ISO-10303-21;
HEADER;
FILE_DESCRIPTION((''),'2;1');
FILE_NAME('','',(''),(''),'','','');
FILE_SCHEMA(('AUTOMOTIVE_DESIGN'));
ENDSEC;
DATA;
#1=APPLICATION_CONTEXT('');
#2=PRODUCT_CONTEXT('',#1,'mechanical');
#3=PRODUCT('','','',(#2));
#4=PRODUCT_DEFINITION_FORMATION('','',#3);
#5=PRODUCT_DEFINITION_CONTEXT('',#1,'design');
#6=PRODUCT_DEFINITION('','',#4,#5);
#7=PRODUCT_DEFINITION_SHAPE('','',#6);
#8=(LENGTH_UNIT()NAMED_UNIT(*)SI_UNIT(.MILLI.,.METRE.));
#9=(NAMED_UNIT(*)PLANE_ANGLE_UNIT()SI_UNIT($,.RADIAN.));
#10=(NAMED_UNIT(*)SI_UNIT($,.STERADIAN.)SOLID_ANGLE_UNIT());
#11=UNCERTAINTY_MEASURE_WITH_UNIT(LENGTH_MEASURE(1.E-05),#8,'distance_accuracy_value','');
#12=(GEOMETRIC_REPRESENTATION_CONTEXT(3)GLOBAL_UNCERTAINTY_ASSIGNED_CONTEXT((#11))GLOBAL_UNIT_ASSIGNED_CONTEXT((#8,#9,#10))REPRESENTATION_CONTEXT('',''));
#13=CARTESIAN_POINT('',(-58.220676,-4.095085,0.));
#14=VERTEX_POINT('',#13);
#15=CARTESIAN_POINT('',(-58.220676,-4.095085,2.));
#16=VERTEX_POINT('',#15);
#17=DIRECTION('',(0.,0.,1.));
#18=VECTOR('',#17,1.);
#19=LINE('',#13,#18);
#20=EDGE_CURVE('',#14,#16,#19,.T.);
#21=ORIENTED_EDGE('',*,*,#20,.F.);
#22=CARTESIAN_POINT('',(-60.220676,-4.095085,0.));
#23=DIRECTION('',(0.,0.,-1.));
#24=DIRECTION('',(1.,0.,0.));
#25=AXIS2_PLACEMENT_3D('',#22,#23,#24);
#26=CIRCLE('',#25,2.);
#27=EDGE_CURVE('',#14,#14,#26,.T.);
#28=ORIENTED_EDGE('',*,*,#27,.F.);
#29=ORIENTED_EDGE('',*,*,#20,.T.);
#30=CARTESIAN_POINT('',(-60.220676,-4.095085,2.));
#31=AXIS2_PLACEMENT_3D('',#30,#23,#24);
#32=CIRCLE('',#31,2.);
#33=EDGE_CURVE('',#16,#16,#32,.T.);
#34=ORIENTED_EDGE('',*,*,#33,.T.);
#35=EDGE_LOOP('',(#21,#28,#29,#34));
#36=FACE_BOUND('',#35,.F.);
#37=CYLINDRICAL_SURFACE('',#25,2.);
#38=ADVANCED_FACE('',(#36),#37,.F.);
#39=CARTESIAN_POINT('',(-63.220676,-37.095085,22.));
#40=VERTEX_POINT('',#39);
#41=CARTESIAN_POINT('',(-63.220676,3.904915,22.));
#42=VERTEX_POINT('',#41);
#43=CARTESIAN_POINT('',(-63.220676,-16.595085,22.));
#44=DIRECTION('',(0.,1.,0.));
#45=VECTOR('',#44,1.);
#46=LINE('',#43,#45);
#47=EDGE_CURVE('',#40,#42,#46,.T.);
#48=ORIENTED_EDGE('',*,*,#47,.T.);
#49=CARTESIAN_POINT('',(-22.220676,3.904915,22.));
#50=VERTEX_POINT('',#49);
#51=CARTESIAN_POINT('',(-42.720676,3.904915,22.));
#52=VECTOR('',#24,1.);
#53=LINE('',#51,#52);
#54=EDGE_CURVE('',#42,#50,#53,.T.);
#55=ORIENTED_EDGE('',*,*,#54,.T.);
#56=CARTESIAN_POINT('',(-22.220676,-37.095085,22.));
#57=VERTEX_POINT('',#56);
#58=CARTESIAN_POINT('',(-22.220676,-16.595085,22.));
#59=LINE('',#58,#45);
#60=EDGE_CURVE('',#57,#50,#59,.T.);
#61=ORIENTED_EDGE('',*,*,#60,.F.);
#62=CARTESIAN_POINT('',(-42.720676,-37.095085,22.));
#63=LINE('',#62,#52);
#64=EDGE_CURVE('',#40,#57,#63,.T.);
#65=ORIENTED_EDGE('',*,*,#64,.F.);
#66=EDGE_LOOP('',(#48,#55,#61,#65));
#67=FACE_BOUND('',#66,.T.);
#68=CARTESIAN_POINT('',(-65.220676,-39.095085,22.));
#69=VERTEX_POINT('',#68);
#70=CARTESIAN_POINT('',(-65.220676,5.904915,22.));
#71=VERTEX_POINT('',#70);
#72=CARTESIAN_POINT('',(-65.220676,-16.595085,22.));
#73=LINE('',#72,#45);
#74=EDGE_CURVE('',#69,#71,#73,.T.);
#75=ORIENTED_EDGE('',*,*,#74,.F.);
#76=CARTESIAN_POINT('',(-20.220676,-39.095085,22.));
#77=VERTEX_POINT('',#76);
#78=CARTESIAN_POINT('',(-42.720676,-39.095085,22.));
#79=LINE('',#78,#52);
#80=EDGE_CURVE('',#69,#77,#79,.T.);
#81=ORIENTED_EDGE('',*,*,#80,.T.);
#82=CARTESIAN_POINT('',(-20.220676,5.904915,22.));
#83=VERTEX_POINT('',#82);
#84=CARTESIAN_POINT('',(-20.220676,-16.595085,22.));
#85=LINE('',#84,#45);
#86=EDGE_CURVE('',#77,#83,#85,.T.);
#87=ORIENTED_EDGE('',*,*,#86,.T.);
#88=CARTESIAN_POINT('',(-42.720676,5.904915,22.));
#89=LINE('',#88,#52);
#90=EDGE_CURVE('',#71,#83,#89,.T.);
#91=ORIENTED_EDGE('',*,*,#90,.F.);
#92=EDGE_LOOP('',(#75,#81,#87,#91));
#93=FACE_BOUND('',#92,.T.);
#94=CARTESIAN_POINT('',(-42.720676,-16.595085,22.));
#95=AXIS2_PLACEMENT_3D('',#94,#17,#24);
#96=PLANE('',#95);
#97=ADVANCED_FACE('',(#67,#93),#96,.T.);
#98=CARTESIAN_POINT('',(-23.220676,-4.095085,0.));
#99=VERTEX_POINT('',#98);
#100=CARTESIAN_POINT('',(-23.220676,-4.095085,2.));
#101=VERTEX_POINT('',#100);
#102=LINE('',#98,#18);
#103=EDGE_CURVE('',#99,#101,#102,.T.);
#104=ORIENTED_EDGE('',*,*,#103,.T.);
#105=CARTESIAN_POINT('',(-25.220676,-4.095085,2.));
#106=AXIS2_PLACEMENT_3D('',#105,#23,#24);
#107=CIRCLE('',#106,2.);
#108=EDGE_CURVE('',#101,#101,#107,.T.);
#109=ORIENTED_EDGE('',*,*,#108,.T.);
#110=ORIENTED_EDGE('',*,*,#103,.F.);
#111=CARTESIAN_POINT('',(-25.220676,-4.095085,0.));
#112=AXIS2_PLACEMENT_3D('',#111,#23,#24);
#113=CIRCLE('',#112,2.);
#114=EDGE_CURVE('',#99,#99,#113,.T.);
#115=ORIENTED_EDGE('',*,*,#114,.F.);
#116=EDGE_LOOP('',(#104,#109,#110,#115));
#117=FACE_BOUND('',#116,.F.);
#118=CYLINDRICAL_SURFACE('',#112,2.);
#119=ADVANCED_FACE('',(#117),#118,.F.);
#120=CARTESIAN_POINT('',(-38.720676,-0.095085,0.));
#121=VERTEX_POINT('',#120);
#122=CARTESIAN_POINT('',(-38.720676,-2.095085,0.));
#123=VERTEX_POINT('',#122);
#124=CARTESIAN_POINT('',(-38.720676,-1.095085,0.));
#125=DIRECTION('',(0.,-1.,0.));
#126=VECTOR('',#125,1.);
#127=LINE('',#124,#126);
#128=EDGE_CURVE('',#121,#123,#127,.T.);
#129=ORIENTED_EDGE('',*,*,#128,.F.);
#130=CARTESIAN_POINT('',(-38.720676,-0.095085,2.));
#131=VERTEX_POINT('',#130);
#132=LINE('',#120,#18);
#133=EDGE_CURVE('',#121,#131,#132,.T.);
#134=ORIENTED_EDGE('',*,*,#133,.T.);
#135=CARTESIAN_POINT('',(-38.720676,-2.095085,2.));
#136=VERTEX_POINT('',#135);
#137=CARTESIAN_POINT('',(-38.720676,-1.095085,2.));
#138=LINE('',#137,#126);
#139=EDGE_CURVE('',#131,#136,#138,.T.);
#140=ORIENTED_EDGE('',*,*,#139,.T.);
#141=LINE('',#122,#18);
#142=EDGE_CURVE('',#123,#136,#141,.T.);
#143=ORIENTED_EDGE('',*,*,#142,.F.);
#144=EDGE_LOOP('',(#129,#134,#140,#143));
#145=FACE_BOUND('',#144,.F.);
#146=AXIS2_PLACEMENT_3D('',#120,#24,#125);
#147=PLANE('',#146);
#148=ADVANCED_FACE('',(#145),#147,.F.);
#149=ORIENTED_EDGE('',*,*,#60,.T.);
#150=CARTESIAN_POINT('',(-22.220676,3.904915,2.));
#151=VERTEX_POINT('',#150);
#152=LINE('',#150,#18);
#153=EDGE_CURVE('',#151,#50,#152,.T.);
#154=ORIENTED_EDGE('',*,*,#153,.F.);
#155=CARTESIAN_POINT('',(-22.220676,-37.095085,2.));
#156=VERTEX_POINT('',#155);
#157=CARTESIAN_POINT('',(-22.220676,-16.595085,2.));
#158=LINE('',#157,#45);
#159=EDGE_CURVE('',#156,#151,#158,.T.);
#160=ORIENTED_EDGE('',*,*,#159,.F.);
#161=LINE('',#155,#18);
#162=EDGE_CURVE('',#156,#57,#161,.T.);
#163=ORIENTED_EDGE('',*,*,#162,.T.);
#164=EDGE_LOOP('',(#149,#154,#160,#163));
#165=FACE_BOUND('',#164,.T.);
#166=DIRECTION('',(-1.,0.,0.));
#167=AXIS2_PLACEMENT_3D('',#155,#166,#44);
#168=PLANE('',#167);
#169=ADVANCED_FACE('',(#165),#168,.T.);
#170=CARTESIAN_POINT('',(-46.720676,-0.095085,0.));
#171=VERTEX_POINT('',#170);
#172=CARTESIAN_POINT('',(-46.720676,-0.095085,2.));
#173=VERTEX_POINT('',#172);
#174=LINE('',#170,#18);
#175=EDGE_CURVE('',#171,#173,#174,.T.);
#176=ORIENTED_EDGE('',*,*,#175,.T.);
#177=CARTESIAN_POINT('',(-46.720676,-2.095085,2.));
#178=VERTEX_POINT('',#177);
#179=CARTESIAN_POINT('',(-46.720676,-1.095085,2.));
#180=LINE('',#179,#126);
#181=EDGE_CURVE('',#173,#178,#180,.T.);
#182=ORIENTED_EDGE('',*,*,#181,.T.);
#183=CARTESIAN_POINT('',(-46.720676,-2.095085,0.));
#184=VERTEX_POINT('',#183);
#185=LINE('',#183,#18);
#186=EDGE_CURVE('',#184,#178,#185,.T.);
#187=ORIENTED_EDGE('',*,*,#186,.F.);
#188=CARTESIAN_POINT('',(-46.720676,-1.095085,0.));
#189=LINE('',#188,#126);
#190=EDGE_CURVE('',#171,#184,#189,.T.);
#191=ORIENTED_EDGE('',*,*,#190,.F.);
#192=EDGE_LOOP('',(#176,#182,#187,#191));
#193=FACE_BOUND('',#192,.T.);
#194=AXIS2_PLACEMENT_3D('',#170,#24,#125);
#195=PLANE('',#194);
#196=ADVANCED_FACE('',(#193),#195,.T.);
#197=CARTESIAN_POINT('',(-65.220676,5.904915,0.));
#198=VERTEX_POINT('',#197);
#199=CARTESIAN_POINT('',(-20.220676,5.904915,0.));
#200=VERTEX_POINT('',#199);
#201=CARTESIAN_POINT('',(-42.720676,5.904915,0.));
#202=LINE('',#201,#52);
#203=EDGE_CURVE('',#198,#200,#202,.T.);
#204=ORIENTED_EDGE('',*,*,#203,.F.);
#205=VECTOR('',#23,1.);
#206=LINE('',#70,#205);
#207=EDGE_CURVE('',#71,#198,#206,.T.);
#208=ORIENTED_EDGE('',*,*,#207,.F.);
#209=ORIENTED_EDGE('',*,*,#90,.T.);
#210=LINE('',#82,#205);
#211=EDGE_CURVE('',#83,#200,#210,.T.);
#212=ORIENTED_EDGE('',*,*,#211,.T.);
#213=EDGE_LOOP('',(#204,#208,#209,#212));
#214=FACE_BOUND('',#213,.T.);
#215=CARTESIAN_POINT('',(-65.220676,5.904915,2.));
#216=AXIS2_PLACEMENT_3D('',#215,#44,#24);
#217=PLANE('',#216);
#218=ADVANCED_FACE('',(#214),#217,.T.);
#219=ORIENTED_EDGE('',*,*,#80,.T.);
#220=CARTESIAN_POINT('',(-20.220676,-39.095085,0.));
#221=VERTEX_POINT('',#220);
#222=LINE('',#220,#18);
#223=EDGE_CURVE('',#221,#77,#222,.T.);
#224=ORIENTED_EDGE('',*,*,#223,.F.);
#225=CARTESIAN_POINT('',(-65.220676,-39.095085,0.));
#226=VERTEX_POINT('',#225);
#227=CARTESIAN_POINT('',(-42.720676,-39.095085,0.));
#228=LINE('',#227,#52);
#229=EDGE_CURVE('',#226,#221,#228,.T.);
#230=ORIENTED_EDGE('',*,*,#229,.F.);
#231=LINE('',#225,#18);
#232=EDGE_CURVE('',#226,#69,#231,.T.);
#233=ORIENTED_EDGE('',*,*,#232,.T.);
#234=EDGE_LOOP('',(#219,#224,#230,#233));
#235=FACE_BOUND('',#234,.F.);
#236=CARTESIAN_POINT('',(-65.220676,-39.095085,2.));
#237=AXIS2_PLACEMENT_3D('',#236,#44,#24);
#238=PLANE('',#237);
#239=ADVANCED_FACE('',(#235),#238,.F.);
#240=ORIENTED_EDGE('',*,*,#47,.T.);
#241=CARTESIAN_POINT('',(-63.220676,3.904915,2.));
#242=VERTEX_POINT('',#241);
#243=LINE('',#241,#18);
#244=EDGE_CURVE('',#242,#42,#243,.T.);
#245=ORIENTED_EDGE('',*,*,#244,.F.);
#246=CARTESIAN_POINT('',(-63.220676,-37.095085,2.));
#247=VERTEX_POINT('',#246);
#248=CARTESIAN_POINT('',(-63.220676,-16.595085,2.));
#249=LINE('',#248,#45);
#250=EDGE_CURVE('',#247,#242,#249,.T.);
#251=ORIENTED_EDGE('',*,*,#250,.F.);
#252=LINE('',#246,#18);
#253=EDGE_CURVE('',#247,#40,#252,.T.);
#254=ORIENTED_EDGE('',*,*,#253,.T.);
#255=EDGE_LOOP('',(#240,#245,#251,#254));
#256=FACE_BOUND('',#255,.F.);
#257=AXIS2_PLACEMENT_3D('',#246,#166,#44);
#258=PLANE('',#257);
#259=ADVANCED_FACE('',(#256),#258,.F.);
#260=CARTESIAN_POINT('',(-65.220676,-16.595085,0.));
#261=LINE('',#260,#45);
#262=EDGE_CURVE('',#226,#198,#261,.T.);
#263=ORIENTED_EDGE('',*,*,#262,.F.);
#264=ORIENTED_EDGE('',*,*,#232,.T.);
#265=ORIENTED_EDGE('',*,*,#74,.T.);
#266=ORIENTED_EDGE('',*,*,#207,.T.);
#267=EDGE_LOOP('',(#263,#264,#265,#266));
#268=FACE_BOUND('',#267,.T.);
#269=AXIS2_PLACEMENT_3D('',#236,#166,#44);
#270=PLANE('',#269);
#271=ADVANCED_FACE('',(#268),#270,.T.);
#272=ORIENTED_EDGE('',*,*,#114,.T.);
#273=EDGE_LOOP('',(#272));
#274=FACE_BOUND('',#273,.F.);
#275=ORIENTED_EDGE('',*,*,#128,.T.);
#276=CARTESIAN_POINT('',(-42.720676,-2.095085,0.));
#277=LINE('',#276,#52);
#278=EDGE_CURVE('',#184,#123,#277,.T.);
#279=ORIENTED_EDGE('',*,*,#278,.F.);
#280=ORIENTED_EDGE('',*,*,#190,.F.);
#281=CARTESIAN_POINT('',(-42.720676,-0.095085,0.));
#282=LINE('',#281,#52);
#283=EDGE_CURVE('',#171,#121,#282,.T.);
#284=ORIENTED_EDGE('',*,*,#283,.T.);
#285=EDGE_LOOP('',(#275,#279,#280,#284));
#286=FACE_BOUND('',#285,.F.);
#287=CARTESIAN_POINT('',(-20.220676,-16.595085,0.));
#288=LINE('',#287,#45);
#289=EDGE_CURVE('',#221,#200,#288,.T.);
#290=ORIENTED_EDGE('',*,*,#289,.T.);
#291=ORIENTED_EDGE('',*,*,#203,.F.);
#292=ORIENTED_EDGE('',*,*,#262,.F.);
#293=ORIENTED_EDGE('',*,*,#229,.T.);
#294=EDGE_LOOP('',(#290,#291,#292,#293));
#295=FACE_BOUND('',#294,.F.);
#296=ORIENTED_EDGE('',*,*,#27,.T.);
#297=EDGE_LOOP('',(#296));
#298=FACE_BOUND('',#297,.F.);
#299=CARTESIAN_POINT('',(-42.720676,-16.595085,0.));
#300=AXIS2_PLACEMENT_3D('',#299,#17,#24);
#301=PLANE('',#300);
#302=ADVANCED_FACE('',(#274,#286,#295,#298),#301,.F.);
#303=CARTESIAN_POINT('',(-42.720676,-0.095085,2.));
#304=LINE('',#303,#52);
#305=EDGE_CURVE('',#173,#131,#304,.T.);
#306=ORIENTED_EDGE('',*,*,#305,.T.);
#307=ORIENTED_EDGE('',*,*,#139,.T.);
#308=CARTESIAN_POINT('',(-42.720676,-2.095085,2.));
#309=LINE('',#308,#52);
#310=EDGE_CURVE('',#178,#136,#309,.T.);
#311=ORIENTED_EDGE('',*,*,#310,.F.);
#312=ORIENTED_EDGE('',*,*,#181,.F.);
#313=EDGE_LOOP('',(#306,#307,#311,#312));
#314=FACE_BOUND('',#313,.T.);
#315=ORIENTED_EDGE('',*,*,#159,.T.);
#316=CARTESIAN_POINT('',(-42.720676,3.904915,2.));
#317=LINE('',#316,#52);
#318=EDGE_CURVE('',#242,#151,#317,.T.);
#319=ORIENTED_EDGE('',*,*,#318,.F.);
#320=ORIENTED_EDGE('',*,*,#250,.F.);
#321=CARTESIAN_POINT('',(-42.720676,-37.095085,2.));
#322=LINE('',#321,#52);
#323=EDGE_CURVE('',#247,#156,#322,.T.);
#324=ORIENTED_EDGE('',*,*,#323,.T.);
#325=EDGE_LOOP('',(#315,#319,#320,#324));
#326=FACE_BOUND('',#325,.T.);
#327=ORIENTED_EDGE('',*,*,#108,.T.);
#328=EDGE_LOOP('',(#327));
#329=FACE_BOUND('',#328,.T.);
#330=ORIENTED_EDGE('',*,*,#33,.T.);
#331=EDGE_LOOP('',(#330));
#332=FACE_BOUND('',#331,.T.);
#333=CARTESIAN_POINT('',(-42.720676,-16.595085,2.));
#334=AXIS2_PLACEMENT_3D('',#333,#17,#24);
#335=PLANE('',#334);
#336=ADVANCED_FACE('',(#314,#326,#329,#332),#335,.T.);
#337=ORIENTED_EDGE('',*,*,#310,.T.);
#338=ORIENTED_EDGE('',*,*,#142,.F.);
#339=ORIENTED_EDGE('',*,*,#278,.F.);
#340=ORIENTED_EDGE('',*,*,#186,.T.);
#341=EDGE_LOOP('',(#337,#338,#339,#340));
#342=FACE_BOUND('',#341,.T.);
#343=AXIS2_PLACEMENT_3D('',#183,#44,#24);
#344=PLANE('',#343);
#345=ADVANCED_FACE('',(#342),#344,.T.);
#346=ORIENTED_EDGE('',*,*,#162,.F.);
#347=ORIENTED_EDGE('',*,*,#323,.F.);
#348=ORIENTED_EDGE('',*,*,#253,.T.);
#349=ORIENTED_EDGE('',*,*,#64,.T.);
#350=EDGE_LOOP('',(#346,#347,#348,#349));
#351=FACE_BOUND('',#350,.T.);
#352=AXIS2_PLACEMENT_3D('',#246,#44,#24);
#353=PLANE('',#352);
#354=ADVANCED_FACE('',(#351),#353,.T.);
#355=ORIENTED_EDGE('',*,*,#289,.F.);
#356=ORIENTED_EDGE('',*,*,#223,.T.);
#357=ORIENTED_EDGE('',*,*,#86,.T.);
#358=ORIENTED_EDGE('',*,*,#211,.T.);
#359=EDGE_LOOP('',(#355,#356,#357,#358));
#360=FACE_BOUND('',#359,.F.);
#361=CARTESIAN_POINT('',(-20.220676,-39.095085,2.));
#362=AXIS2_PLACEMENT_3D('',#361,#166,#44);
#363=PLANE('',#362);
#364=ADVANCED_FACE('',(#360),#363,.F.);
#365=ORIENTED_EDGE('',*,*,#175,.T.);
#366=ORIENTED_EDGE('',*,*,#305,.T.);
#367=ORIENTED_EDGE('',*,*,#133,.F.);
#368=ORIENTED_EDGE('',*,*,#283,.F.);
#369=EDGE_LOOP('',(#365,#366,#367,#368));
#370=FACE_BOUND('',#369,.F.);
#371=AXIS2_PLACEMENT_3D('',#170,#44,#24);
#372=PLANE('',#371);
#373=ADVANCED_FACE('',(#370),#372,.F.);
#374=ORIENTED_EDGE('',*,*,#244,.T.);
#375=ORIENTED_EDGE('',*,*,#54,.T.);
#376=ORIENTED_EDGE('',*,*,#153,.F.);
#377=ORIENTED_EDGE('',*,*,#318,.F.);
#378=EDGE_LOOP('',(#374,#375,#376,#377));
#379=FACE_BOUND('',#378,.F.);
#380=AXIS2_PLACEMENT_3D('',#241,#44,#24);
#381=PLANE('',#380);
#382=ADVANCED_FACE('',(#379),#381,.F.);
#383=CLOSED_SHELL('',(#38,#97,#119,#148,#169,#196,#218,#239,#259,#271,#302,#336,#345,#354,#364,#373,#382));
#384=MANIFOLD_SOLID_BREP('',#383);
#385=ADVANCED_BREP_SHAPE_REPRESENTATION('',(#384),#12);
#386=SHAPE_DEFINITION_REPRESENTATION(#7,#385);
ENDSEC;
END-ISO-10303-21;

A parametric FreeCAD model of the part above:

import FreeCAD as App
import Part
import Sketcher

V = App.Vector


def add_polygon(sketch, points):
    """Adds a closed chain of lines whose ends are joined by coincident constraints."""
    first, n = sketch.GeometryCount, len(points)
    for a, b in zip(points, points[1:] + points[:1]):
        sketch.addGeometry(Part.LineSegment(App.Vector(*a, 0), App.Vector(*b, 0)), False)
    for i in range(n):
        sketch.addConstraint(Sketcher.Constraint("Coincident", first + i, 2, first + (i + 1) % n, 1))

doc = App.newDocument("Part")
body = doc.addObject("PartDesign::Body", "Body")

sketch1 = body.newObject("Sketcher::SketchObject", "Sketch")
sketch1.AttachmentSupport = (doc.getObject("XY_Plane"), [""])
sketch1.MapMode = "FlatFace"
add_polygon(sketch1, [(-65.220676, 5.904915), (-65.220676, -39.095085), (-20.220676, -39.095085), (-20.220676, 5.904915)])
sketch1.addConstraint(Sketcher.Constraint("Vertical", 0))
sketch1.addConstraint(Sketcher.Constraint("Horizontal", 1))
sketch1.addConstraint(Sketcher.Constraint("Vertical", 2))
sketch1.addConstraint(Sketcher.Constraint("Horizontal", 3))
sketch1.addConstraint(Sketcher.Constraint("Equal", 3, 0))
sketch1.addConstraint(Sketcher.Constraint("DistanceX", 1, 1, 1, 2, 45.0))
sketch1.addConstraint(Sketcher.Constraint("DistanceX", 0, 2, -1, 1, 65.220676))
sketch1.addConstraint(Sketcher.Constraint("DistanceY", 0, 2, -1, 1, 39.095085))
pad1 = body.newObject("PartDesign::Pad", "Pad")
pad1.Profile = sketch1
pad1.Length = 2

sketch2 = body.newObject("Sketcher::SketchObject", "Sketch001")
sketch2.AttachmentSupport = (doc.getObject("XY_Plane"), [""])
sketch2.MapMode = "FlatFace"
sketch2.AttachmentOffset = App.Placement(V(0, 0, 2), App.Rotation())
add_polygon(sketch2, [(-65.220676, 5.904915), (-65.220676, -39.095085), (-20.220676, -39.095085), (-20.220676, 5.904915)])
add_polygon(sketch2, [(-22.220676, -37.095085), (-63.220676, -37.095085), (-63.220676, 3.904915), (-22.220676, 3.904915)])
sketch2.addConstraint(Sketcher.Constraint("Vertical", 0))
sketch2.addConstraint(Sketcher.Constraint("Horizontal", 1))
sketch2.addConstraint(Sketcher.Constraint("Vertical", 2))
sketch2.addConstraint(Sketcher.Constraint("Horizontal", 3))
sketch2.addConstraint(Sketcher.Constraint("Horizontal", 4))
sketch2.addConstraint(Sketcher.Constraint("Vertical", 5))
sketch2.addConstraint(Sketcher.Constraint("Horizontal", 6))
sketch2.addConstraint(Sketcher.Constraint("Vertical", 7))
sketch2.addConstraint(Sketcher.Constraint("Equal", 3, 0))
sketch2.addConstraint(Sketcher.Constraint("Equal", 6, 5))
sketch2.addConstraint(Sketcher.Constraint("DistanceX", 1, 1, 1, 2, 45.0))
sketch2.addConstraint(Sketcher.Constraint("DistanceX", 4, 2, 4, 1, 41.0))
sketch2.addConstraint(Sketcher.Constraint("DistanceX", 0, 2, 4, 2, 2.0))
sketch2.addConstraint(Sketcher.Constraint("DistanceY", 0, 2, 4, 2, 2.0))
sketch2.addConstraint(Sketcher.Constraint("DistanceX", 0, 2, -1, 1, 65.220676))
sketch2.addConstraint(Sketcher.Constraint("DistanceY", 0, 2, -1, 1, 39.095085))
pad2 = body.newObject("PartDesign::Pad", "Pad001")
pad2.Profile = sketch2
pad2.Length = 20

sketch3 = body.newObject("Sketcher::SketchObject", "Sketch002")
sketch3.AttachmentSupport = (doc.getObject("XY_Plane"), [""])
sketch3.MapMode = "FlatFace"
add_polygon(sketch3, [(-46.720676, -2.095085), (-46.720676, -0.095085), (-38.720676, -0.095085), (-38.720676, -2.095085)])
sketch3.addConstraint(Sketcher.Constraint("Vertical", 0))
sketch3.addConstraint(Sketcher.Constraint("Horizontal", 1))
sketch3.addConstraint(Sketcher.Constraint("Vertical", 2))
sketch3.addConstraint(Sketcher.Constraint("Horizontal", 3))
sketch3.addConstraint(Sketcher.Constraint("DistanceX", 1, 1, 1, 2, 8.0))
sketch3.addConstraint(Sketcher.Constraint("DistanceY", 0, 1, 0, 2, 2.0))
sketch3.addConstraint(Sketcher.Constraint("DistanceX", 0, 2, -1, 1, 46.720676))
sketch3.addConstraint(Sketcher.Constraint("DistanceY", 0, 2, -1, 1, 0.095085))
pocket1 = body.newObject("PartDesign::Pocket", "Pocket")
pocket1.Profile = sketch3
pocket1.Type = "ThroughAll"
pocket1.Reversed = True

sketch4 = body.newObject("Sketcher::SketchObject", "Sketch003")
sketch4.AttachmentSupport = (doc.getObject("XY_Plane"), [""])
sketch4.MapMode = "FlatFace"
sketch4.addGeometry(Part.Circle(V(-25.220676, -4.095085, 0), V(0, 0, 1), 2), False)
sketch4.addGeometry(Part.Circle(V(-60.220676, -4.095085, 0), V(0, 0, 1), 2), False)
sketch4.addConstraint(Sketcher.Constraint("Equal", 0, 1))
sketch4.addConstraint(Sketcher.Constraint("Horizontal", 0, 3, 1, 3))
sketch4.addConstraint(Sketcher.Constraint("Diameter", 0, 4.0))
sketch4.addConstraint(Sketcher.Constraint("DistanceX", 1, 3, 0, 3, 35.0))
sketch4.addConstraint(Sketcher.Constraint("DistanceX", 0, 3, -1, 1, 25.220676))
sketch4.addConstraint(Sketcher.Constraint("DistanceY", 0, 3, -1, 1, 4.095085))
pocket2 = body.newObject("PartDesign::Pocket", "Pocket001")
pocket2.Profile = sketch4
pocket2.Length = 25
pocket2.Reversed = True

doc.recompute()
